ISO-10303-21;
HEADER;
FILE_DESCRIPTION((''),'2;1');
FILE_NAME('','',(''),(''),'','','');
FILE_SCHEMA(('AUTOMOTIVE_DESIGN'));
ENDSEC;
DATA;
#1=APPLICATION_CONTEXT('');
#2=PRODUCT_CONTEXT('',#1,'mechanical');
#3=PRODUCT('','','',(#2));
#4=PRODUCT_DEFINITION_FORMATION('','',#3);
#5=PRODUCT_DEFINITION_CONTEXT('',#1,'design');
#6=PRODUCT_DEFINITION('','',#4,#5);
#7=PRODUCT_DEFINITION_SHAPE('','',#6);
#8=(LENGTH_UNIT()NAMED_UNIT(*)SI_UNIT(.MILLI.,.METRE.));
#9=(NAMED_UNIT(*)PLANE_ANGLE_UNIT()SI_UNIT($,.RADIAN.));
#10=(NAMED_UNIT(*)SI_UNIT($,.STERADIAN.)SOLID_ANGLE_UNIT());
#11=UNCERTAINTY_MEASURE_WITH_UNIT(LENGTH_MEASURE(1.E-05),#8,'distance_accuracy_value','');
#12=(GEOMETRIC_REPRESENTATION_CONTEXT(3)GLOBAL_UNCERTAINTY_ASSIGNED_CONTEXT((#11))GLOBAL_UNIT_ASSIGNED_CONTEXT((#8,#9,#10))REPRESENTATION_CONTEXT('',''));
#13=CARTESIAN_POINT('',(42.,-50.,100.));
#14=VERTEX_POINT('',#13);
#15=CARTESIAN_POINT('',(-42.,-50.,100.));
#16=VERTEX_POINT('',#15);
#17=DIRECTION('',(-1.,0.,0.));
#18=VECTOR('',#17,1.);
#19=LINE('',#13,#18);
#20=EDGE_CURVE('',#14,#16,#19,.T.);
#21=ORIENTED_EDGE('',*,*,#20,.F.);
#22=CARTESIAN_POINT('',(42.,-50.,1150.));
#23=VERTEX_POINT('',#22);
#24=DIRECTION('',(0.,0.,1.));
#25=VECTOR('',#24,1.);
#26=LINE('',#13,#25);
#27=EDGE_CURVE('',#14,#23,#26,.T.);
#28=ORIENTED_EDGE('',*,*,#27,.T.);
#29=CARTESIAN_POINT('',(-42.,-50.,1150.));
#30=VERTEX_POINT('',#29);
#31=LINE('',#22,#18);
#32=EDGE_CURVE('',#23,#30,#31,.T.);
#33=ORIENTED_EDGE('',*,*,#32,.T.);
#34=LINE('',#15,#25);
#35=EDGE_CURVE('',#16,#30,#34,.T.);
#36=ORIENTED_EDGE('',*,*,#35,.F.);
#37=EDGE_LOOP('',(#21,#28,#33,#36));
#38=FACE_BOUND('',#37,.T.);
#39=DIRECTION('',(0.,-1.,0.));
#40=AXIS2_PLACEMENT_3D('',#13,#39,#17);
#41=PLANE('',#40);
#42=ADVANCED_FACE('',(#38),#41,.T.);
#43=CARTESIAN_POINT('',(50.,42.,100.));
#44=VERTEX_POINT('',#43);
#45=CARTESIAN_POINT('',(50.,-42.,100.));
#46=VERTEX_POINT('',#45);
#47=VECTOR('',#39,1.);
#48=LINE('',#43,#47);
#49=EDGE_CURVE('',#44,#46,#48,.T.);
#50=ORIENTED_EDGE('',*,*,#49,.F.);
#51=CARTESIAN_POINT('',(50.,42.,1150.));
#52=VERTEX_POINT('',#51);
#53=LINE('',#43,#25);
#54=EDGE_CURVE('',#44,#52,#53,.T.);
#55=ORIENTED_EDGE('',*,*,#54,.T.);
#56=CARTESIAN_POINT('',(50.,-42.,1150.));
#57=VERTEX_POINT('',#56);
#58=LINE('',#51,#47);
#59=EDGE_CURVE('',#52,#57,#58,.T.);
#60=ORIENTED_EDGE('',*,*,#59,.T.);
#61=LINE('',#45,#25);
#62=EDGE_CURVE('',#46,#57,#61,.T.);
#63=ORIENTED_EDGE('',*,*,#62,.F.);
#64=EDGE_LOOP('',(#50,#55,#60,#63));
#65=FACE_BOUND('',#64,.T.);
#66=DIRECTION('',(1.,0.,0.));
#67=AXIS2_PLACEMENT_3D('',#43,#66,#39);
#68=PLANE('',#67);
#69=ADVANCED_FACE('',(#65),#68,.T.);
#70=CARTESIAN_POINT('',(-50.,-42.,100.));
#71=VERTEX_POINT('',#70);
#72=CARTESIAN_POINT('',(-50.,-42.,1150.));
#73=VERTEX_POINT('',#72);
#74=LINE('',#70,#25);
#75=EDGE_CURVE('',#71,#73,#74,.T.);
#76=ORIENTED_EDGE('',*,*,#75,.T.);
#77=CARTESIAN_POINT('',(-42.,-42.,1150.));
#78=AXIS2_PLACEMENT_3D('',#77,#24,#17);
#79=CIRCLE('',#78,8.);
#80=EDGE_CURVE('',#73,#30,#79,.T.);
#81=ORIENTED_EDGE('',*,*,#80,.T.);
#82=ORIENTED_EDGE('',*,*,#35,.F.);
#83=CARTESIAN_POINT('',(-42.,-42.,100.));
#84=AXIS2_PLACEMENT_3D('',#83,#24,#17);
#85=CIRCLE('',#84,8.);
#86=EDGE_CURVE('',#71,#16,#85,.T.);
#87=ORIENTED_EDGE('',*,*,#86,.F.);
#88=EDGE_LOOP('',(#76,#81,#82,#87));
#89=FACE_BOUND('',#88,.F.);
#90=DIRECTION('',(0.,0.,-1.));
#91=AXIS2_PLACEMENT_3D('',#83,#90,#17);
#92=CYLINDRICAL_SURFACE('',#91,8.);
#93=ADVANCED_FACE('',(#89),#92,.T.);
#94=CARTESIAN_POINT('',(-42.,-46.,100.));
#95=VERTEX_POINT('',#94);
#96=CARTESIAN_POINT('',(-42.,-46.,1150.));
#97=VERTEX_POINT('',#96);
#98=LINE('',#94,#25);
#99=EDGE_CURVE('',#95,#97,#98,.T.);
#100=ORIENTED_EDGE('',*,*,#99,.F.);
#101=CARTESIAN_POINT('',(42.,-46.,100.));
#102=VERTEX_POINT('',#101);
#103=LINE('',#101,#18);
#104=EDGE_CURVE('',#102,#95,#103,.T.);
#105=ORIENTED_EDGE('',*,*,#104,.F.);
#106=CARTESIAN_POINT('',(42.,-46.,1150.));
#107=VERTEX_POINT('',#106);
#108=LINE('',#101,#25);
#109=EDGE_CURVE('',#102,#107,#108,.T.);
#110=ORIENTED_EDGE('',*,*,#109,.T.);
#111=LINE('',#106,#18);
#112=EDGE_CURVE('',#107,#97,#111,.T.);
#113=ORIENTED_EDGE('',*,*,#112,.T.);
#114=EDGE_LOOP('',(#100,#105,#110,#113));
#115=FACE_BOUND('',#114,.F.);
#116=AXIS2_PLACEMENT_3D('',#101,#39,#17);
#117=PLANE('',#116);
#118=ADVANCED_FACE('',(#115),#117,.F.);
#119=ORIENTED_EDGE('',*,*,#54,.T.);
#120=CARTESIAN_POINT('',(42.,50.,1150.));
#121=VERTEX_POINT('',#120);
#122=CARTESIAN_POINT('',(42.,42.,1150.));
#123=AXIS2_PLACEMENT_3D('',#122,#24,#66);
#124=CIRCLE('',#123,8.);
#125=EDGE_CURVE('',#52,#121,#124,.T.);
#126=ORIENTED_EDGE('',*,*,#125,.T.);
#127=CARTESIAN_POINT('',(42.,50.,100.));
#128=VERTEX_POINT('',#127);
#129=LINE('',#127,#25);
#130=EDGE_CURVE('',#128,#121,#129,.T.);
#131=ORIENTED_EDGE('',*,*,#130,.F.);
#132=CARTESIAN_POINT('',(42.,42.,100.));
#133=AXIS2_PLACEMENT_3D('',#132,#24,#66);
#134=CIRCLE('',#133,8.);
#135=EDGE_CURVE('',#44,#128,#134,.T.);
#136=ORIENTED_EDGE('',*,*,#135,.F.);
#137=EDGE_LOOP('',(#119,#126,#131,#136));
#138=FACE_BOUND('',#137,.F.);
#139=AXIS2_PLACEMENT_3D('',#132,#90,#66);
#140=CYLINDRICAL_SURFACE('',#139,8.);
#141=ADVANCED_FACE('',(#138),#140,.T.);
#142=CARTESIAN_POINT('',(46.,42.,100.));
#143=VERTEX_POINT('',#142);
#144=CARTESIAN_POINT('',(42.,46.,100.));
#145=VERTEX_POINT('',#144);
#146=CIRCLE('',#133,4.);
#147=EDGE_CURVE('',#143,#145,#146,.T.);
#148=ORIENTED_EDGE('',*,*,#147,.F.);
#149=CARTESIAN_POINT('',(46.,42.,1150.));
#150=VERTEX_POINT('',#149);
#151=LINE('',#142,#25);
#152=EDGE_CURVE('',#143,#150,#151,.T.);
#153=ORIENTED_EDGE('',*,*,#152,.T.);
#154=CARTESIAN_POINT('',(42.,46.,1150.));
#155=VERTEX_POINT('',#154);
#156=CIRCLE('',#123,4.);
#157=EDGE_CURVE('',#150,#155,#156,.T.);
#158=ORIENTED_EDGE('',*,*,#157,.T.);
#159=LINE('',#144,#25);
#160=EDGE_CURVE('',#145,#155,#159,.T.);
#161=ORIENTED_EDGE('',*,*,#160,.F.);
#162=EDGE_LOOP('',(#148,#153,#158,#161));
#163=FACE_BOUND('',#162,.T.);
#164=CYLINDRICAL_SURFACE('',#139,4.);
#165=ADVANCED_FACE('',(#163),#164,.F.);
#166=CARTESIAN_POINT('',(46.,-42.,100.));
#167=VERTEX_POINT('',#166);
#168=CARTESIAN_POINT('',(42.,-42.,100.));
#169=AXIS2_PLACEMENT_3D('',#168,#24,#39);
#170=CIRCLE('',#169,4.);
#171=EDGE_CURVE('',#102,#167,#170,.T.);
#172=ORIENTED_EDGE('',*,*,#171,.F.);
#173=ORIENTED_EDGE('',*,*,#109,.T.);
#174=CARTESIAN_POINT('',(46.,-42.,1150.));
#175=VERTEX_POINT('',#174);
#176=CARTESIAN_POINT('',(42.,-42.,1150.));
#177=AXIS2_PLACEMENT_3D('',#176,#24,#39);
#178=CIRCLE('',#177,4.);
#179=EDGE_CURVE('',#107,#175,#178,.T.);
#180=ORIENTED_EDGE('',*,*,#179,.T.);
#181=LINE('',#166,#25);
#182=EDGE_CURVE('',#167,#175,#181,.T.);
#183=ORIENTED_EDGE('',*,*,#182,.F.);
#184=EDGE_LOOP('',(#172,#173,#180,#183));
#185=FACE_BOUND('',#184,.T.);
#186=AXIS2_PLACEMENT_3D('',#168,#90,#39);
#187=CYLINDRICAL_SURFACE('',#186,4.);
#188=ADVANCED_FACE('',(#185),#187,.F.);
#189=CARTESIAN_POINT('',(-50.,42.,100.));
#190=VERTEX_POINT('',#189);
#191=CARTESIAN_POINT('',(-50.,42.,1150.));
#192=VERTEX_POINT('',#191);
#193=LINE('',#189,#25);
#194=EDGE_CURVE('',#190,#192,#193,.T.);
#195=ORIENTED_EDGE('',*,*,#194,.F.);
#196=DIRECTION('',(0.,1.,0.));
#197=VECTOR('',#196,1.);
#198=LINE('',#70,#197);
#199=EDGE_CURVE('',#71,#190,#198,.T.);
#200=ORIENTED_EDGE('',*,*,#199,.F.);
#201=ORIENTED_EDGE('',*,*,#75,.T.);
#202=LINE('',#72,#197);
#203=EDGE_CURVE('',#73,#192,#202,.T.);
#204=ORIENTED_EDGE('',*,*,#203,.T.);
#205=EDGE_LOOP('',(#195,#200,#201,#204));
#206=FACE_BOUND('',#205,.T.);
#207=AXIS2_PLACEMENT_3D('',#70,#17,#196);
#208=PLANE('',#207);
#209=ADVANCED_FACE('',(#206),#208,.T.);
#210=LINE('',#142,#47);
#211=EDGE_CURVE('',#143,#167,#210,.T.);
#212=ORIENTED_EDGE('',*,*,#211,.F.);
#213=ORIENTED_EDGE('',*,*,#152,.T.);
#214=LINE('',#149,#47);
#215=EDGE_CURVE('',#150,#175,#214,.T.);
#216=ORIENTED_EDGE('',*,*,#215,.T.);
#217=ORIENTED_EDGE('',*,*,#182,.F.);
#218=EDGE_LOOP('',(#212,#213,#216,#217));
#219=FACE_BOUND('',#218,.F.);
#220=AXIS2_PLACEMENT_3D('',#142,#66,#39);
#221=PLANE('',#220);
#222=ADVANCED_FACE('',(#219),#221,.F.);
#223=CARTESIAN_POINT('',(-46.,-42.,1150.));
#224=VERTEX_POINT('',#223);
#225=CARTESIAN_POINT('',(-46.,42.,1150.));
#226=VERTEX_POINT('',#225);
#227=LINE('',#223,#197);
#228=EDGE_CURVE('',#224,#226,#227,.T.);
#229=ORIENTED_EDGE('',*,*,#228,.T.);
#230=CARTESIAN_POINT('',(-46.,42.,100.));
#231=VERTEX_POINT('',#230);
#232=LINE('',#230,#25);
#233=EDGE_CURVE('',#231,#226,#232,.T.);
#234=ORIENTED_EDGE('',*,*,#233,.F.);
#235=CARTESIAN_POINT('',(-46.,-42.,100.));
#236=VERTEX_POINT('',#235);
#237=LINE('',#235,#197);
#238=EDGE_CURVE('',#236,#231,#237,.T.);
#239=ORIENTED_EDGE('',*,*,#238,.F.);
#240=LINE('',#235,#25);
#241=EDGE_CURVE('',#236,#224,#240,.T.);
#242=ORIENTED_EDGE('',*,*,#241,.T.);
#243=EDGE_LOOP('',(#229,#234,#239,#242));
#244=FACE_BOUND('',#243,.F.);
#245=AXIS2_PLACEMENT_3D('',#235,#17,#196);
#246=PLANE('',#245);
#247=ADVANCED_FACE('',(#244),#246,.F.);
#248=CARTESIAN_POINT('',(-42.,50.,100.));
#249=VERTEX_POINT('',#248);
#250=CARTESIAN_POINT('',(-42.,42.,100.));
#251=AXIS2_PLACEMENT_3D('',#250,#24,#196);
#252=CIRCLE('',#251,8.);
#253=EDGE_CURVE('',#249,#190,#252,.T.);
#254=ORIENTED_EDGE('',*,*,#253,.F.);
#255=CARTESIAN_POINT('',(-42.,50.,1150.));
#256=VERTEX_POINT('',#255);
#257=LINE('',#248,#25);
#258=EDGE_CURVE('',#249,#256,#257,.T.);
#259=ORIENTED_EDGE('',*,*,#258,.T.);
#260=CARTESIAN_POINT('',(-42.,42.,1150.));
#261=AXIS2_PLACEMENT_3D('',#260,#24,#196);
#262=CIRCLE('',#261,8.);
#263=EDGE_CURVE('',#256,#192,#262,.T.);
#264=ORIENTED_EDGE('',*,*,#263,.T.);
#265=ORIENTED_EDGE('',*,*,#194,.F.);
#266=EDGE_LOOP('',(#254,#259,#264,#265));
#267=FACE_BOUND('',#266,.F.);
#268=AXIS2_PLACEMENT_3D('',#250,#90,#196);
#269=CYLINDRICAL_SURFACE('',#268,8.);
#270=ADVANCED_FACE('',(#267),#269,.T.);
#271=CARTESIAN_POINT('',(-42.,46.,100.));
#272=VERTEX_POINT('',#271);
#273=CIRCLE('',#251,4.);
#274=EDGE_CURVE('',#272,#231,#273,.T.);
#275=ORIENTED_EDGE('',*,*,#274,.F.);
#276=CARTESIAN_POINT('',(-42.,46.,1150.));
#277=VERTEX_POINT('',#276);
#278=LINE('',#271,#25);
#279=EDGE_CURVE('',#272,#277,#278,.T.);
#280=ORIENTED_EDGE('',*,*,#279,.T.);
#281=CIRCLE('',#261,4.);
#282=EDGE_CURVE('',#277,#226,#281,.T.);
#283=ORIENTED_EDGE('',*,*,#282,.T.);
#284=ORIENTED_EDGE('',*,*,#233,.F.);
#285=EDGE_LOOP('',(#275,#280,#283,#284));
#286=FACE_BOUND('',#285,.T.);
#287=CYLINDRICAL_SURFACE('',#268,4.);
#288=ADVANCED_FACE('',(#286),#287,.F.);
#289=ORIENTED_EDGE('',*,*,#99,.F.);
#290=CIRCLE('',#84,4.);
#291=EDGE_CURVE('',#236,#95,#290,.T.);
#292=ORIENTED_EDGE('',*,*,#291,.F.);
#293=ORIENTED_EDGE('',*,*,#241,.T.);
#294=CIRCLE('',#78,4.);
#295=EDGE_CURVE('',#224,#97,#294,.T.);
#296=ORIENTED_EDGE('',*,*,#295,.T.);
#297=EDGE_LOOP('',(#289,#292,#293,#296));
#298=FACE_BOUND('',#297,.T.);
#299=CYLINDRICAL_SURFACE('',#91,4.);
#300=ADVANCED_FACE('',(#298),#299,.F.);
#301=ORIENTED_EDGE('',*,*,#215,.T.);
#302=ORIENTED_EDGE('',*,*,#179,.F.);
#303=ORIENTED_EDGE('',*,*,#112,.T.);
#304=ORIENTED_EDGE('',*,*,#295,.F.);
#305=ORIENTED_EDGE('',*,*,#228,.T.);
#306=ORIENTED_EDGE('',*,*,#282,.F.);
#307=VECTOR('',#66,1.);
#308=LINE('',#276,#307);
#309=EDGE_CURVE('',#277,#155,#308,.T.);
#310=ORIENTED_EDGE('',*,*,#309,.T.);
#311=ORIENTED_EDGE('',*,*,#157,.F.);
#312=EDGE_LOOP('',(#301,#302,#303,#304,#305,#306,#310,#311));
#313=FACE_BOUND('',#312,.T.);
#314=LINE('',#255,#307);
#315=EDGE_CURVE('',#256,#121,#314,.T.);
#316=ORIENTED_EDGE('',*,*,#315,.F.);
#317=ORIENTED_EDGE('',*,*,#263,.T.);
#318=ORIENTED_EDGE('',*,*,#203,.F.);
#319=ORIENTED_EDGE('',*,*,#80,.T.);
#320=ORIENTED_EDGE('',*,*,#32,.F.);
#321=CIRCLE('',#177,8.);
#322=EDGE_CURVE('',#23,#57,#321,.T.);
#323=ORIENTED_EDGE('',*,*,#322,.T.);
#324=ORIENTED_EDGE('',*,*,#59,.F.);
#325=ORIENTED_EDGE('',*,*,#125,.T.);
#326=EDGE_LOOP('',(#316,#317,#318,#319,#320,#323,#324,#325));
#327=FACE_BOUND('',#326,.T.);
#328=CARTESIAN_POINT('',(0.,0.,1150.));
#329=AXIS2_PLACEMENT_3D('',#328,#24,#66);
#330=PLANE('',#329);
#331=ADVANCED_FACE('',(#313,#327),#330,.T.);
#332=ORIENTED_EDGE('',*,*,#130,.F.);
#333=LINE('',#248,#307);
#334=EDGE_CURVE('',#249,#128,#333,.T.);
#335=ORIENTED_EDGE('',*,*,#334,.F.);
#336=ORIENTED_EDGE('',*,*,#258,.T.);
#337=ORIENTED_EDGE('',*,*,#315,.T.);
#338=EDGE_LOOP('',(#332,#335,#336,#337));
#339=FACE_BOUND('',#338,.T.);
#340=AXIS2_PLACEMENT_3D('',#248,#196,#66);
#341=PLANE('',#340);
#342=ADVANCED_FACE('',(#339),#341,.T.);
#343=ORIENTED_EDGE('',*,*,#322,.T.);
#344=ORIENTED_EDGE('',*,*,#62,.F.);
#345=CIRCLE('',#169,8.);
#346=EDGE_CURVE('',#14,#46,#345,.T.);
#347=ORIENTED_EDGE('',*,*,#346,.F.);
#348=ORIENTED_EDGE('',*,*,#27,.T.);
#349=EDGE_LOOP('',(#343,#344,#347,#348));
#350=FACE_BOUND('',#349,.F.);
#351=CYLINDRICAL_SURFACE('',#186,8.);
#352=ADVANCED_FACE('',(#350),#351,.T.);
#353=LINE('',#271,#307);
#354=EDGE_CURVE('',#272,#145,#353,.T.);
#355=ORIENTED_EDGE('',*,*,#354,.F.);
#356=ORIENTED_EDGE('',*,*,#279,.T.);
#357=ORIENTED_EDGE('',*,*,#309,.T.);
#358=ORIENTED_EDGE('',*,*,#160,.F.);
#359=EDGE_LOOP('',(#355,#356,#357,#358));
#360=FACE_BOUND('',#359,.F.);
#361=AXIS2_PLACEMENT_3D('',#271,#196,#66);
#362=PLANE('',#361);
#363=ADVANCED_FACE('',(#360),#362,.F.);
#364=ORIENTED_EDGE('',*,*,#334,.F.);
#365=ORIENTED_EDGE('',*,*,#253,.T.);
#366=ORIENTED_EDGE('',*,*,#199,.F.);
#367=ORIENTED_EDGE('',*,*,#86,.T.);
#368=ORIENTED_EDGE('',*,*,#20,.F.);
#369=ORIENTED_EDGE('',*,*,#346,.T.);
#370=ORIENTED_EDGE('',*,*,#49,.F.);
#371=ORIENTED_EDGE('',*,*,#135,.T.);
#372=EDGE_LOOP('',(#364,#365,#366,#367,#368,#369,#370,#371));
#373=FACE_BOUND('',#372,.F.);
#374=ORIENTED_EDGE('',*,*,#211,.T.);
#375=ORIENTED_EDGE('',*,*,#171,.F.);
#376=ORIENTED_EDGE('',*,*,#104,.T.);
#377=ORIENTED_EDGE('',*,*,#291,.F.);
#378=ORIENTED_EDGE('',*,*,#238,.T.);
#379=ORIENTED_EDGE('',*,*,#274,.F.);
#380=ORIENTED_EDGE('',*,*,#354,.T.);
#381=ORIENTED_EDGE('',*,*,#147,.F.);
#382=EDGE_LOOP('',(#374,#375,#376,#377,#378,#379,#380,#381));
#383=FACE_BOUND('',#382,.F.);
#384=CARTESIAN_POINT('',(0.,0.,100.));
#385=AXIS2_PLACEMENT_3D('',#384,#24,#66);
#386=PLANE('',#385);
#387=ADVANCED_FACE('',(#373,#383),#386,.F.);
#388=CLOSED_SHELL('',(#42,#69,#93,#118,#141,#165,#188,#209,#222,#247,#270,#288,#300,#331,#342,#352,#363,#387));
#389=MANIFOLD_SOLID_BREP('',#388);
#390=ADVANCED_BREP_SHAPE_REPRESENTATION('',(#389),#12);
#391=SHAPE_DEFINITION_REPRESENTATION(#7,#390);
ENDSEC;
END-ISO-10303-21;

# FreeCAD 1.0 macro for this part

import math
import FreeCAD as App
import Part
import Sketcher

V = App.Vector

doc = App.newDocument("Part")
body = doc.addObject("PartDesign::Body", "Body")

# Sketch on XY plane
sketch1 = body.newObject("Sketcher::SketchObject", "Sketch")
sketch1.AttachmentSupport = (doc.getObject("XY_Plane"), [""])
sketch1.MapMode = "FlatFace"
sketch1.AttachmentOffset = App.Placement(V(0, 0, 100), App.Rotation())
sketch1.addGeometry([
    Part.LineSegment(V(-50, 42, 0), V(-50, -42, 0)),  # 0
    Part.ArcOfCircle(Part.Circle(V(-42, -42, 0), V(0, 0, 1), 8), math.radians(180), math.radians(270)),  # 1
    Part.LineSegment(V(-42, -50, 0), V(42, -50, 0)),  # 2
    Part.ArcOfCircle(Part.Circle(V(42, -42, 0), V(0, 0, 1), 8), math.radians(-90), math.radians(0)),  # 3
    Part.LineSegment(V(50, -42, 0), V(50, 42, 0)),  # 4
    Part.ArcOfCircle(Part.Circle(V(42, 42, 0), V(0, 0, 1), 8), math.radians(0), math.radians(90)),  # 5
    Part.LineSegment(V(42, 50, 0), V(-42, 50, 0)),  # 6
    Part.ArcOfCircle(Part.Circle(V(-42, 42, 0), V(0, 0, 1), 8), math.radians(90), math.radians(180)),  # 7
    Part.ArcOfCircle(Part.Circle(V(-42, 42, 0), V(0, 0, 1), 4), math.radians(90), math.radians(180)),  # 8
    Part.LineSegment(V(-42, 46, 0), V(42, 46, 0)),  # 9
    Part.ArcOfCircle(Part.Circle(V(42, 42, 0), V(0, 0, 1), 4), math.radians(0), math.radians(90)),  # 10
    Part.LineSegment(V(46, 42, 0), V(46, -42, 0)),  # 11
    Part.ArcOfCircle(Part.Circle(V(42, -42, 0), V(0, 0, 1), 4), math.radians(-90), math.radians(0)),  # 12
    Part.LineSegment(V(42, -46, 0), V(-42, -46, 0)),  # 13
    Part.ArcOfCircle(Part.Circle(V(-42, -42, 0), V(0, 0, 1), 4), math.radians(180), math.radians(270)),  # 14
    Part.LineSegment(V(-46, -42, 0), V(-46, 42, 0)),  # 15
], False)
sketch1.addConstraint([
    Sketcher.Constraint("Tangent", 0, 2, 1, 1),
    Sketcher.Constraint("Tangent", 1, 2, 2, 1),
    Sketcher.Constraint("Tangent", 2, 2, 3, 1),
    Sketcher.Constraint("Tangent", 3, 2, 4, 1),
    Sketcher.Constraint("Tangent", 4, 2, 5, 1),
    Sketcher.Constraint("Tangent", 5, 2, 6, 1),
    Sketcher.Constraint("Tangent", 6, 2, 7, 1),
    Sketcher.Constraint("Tangent", 7, 2, 0, 1),
    Sketcher.Constraint("Tangent", 8, 1, 9, 1),
    Sketcher.Constraint("Tangent", 9, 2, 10, 2),
    Sketcher.Constraint("Tangent", 10, 1, 11, 1),
    Sketcher.Constraint("Tangent", 11, 2, 12, 2),
    Sketcher.Constraint("Tangent", 12, 1, 13, 1),
    Sketcher.Constraint("Tangent", 13, 2, 14, 2),
    Sketcher.Constraint("Tangent", 14, 1, 15, 1),
    Sketcher.Constraint("Tangent", 15, 2, 8, 2),
    Sketcher.Constraint("Vertical", 0),
    Sketcher.Constraint("Horizontal", 2),
    Sketcher.Constraint("Vertical", 4),
    Sketcher.Constraint("Horizontal", 6),
    Sketcher.Constraint("Horizontal", 9),
    Sketcher.Constraint("Vertical", 11),
    Sketcher.Constraint("Horizontal", 13),
    Sketcher.Constraint("Vertical", 15),
    Sketcher.Constraint("Coincident", 8, 3, 7, 3),
    Sketcher.Constraint("Coincident", 10, 3, 5, 3),
    Sketcher.Constraint("Coincident", 12, 3, 3, 3),
    Sketcher.Constraint("Equal", 1, 3),
    Sketcher.Constraint("Equal", 3, 5),
    Sketcher.Constraint("Equal", 5, 7),
    Sketcher.Constraint("Equal", 12, 14),
    Sketcher.Constraint("Symmetric", 1, 3, 5, 3, -1, 1),
    Sketcher.Constraint("Equal", 13, 0),
    Sketcher.Constraint("Radius", 1, 8.0),
    Sketcher.Constraint("Radius", 8, 4.0),
    Sketcher.Constraint("DistanceX", 0, 2, -1, 1, 50.0),
])
pad1 = body.newObject("PartDesign::Pad", "Pad")
pad1.Profile = sketch1
pad1.Length = 1050

doc.recompute()
